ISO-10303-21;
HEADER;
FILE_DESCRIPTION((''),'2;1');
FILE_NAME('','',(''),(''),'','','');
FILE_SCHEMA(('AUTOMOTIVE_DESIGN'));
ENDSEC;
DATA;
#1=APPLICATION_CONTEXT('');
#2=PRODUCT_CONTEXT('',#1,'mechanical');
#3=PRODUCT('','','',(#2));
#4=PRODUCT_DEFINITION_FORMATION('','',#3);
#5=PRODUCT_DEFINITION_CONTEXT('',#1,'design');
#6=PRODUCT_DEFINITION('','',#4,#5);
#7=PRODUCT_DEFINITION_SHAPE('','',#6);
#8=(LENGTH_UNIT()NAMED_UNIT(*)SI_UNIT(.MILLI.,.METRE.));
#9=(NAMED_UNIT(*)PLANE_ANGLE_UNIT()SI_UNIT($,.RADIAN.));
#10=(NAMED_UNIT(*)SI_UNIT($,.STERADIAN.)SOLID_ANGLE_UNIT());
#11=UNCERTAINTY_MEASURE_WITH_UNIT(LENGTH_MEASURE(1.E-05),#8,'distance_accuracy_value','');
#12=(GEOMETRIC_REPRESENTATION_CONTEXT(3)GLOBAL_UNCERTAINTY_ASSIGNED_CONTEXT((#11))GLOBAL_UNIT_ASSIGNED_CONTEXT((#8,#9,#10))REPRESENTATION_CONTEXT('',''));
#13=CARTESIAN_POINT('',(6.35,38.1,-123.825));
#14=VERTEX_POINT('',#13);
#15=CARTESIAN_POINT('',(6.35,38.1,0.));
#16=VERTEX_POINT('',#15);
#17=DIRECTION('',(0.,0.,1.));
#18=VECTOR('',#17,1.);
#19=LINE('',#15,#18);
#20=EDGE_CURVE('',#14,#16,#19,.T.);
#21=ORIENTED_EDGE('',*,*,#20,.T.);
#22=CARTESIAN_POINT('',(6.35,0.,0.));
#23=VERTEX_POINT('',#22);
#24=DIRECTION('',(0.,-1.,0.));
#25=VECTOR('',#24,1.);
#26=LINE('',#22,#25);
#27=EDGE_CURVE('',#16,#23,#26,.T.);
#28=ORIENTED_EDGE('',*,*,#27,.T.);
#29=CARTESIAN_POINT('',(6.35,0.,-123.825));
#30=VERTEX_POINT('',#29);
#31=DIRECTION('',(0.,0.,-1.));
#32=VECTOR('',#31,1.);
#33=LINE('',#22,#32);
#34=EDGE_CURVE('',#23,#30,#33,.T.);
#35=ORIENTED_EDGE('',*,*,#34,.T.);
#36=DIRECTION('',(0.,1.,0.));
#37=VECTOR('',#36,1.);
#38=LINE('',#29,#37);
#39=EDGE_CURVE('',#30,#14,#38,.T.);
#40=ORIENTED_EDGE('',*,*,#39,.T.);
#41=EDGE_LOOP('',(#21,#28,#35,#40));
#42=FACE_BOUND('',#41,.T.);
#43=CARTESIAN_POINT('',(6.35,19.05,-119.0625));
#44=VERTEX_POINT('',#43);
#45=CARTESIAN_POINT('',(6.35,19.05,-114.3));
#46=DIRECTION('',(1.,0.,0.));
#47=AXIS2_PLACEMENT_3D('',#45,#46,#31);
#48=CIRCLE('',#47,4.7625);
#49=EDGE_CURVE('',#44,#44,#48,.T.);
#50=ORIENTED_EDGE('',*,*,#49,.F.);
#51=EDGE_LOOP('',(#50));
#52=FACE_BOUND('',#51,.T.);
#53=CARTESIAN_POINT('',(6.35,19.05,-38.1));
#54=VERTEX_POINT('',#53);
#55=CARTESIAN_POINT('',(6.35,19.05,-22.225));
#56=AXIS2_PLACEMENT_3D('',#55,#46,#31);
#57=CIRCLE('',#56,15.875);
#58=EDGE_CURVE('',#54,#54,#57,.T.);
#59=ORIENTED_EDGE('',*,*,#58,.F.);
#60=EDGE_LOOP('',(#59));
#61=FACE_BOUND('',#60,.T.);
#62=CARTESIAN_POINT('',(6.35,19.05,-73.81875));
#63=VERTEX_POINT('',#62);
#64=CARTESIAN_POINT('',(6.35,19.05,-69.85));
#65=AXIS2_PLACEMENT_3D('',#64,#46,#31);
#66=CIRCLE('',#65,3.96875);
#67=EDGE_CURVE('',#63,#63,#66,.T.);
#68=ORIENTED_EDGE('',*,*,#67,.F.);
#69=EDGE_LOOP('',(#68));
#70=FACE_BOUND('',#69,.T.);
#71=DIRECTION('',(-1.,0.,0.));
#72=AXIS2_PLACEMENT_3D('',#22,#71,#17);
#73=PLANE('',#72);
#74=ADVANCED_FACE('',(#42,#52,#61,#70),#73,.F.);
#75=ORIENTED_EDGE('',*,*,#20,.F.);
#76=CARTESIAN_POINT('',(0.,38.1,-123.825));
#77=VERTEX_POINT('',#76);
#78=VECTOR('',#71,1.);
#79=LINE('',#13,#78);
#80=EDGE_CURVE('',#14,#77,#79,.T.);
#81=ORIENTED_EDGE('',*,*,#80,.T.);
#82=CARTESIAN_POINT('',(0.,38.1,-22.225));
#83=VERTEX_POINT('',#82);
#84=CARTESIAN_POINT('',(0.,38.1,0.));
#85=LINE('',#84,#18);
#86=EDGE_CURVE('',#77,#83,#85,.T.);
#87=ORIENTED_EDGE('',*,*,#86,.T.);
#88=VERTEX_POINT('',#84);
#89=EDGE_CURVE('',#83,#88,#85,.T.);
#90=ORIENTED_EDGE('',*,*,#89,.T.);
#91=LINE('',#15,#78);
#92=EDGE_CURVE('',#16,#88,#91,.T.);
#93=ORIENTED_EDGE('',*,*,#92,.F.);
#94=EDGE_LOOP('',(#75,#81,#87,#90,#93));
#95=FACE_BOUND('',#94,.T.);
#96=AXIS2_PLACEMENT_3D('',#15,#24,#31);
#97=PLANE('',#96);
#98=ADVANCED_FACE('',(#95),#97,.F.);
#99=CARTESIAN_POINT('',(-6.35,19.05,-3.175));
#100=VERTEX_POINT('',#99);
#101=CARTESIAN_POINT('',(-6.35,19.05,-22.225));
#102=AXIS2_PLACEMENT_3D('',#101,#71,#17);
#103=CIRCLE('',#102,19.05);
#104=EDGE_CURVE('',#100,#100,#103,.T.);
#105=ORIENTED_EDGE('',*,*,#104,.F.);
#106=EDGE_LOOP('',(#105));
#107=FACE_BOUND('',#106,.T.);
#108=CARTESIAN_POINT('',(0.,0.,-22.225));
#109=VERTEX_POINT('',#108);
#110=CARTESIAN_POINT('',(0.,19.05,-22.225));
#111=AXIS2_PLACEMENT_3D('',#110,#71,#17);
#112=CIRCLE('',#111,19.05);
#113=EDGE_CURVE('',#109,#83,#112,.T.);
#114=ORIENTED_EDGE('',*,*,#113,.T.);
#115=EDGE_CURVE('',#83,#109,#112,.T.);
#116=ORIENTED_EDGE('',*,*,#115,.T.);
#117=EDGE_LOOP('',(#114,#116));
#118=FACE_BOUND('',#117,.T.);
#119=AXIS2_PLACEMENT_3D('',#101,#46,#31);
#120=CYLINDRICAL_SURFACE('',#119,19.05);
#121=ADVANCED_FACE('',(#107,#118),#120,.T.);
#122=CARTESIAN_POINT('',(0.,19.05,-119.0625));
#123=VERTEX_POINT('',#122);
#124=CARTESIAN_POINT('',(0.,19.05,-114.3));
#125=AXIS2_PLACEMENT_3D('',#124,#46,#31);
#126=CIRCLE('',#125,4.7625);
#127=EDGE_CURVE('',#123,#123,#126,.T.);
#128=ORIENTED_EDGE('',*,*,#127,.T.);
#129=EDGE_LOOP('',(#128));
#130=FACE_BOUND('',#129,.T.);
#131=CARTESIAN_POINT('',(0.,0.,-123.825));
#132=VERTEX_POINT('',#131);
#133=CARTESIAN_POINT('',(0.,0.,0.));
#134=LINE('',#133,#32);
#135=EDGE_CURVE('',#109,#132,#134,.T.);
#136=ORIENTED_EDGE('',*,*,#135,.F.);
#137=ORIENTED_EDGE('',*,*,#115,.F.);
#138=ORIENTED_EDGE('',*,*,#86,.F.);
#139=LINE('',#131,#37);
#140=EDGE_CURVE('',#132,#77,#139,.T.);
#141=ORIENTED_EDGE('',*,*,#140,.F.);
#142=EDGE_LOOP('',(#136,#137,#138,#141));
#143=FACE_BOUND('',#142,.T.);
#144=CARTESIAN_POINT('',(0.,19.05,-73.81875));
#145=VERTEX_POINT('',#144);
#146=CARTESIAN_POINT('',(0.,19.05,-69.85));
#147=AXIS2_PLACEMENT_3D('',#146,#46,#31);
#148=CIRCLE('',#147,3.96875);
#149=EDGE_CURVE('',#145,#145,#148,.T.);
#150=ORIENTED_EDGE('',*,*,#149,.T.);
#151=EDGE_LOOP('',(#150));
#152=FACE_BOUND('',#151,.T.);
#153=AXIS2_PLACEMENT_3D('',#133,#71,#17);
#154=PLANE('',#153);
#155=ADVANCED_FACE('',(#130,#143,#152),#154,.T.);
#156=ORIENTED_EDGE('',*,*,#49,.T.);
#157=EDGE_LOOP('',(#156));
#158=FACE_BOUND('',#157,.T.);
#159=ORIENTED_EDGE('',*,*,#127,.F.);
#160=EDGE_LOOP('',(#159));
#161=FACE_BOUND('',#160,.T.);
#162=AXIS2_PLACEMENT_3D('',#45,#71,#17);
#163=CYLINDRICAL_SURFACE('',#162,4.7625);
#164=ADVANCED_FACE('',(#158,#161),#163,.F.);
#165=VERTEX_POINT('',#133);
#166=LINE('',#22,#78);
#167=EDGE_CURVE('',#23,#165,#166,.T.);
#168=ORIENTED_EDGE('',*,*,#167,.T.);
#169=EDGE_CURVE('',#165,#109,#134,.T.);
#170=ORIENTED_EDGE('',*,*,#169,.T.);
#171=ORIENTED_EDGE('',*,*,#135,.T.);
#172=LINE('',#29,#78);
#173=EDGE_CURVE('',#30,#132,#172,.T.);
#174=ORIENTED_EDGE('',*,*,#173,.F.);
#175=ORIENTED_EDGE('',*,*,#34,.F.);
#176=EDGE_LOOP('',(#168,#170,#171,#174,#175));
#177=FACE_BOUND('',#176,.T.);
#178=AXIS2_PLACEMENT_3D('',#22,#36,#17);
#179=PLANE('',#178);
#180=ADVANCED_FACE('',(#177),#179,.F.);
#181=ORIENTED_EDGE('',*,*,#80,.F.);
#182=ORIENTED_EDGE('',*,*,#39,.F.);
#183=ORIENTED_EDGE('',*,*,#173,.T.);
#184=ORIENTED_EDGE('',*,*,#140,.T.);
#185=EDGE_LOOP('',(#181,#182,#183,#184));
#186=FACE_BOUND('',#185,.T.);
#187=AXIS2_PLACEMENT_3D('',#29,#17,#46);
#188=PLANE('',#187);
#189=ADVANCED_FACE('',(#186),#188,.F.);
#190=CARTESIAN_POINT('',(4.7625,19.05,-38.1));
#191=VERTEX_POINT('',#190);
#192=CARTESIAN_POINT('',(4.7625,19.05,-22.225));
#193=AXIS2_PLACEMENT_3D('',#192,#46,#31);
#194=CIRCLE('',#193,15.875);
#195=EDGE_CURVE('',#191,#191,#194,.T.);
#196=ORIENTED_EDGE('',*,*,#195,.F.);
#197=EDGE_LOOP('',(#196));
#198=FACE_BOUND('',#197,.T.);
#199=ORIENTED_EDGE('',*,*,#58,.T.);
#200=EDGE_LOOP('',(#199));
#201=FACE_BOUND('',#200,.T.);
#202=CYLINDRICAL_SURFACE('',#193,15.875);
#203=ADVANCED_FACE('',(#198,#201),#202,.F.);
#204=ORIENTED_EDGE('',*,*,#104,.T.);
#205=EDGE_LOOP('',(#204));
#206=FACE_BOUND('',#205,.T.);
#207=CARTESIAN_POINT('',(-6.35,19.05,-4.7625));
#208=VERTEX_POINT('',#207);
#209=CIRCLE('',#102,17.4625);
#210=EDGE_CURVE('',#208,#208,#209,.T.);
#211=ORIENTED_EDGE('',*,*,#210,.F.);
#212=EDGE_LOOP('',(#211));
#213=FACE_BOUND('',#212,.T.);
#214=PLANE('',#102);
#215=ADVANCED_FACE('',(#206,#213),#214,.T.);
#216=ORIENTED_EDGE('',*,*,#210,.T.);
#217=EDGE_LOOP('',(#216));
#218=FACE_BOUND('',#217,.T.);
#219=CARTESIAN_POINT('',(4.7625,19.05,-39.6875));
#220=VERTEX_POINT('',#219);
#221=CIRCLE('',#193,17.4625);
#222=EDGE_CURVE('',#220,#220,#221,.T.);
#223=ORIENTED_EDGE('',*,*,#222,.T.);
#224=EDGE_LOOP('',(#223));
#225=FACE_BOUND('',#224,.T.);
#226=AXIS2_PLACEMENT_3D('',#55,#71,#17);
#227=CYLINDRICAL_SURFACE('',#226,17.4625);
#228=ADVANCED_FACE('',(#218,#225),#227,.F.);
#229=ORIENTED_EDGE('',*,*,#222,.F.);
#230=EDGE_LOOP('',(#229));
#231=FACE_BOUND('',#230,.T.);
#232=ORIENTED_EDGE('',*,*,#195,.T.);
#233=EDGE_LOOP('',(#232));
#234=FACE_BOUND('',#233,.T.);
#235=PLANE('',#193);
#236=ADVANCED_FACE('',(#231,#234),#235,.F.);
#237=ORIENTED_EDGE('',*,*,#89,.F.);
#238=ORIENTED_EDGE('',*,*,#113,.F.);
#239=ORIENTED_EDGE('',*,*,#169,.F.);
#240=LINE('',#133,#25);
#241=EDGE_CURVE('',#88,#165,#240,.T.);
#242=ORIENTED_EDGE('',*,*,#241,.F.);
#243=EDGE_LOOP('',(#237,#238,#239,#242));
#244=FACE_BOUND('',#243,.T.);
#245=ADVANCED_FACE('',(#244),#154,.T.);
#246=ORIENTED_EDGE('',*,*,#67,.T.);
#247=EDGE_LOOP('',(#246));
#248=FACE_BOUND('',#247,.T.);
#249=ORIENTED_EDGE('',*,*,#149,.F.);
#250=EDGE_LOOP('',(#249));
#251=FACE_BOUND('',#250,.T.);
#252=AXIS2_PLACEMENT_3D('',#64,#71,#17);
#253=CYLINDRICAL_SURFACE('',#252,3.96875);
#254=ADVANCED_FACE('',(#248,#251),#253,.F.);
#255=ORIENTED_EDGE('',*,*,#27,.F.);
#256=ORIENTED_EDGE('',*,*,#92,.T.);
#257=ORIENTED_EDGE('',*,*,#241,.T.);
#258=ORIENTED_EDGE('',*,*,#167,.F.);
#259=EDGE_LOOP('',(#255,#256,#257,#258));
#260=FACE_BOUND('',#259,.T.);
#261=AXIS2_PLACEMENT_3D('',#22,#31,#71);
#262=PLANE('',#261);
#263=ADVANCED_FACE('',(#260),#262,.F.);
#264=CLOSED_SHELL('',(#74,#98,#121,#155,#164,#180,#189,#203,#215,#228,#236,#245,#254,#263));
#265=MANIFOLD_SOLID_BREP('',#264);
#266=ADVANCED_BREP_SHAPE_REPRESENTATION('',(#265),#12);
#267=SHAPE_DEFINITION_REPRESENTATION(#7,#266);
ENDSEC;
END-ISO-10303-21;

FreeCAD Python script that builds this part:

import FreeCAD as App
import Part
import Sketcher
Q = App.Units.Quantity


def add_polygon(sketch, points):
    """Adds a closed chain of lines whose ends are joined by coincident constraints."""
    first, n = sketch.GeometryCount, len(points)
    for a, b in zip(points, points[1:] + points[:1]):
        sketch.addGeometry(Part.LineSegment(App.Vector(*a, 0), App.Vector(*b, 0)), False)
    for i in range(n):
        sketch.addConstraint(Sketcher.Constraint("Coincident", first + i, 2, first + (i + 1) % n, 1))

doc = App.newDocument("Part")
body = doc.addObject("PartDesign::Body", "Body")

sketch1 = body.newObject("Sketcher::SketchObject", "Sketch")
sketch1.AttachmentSupport = (doc.getObject("YZ_Plane"), [""])
sketch1.MapMode = "FlatFace"
add_polygon(sketch1, [(38.1, 0), (0, 0), (0, -123.825), (38.1, -123.825)])
sketch1.addGeometry(Part.Circle(App.Vector(19.05, -22.225, 0), App.Vector(0, 0, 1), 17.4625), False)
sketch1.addGeometry(Part.Circle(App.Vector(19.05, -69.85, 0), App.Vector(0, 0, 1), 3.96875), False)
sketch1.addGeometry(Part.Circle(App.Vector(19.05, -114.3, 0), App.Vector(0, 0, 1), 4.7625), False)
sketch1.addConstraint(Sketcher.Constraint("Horizontal", 0))
sketch1.addConstraint(Sketcher.Constraint("Vertical", 1))
sketch1.addConstraint(Sketcher.Constraint("Horizontal", 2))
sketch1.addConstraint(Sketcher.Constraint("Vertical", 3))
sketch1.addConstraint(Sketcher.Constraint("Coincident", 0, 2, -1, 1))
sketch1.addConstraint(Sketcher.Constraint("Vertical", 4, 3, 5, 3))
sketch1.addConstraint(Sketcher.Constraint("Vertical", 5, 3, 6, 3))
sketch1.addConstraint(Sketcher.Constraint("Diameter", 4, Q("1.375 in")))
sketch1.addConstraint(Sketcher.Constraint("Diameter", 5, Q("0.3125 in")))
sketch1.addConstraint(Sketcher.Constraint("Diameter", 6, Q("0.375 in")))
sketch1.addConstraint(Sketcher.Constraint("DistanceX", 0, 2, 0, 1, Q("1.5 in")))
sketch1.addConstraint(Sketcher.Constraint("DistanceY", 1, 2, 4, 3, Q("4 in")))
sketch1.addConstraint(Sketcher.Constraint("DistanceY", 6, 3, -1, 1, Q("4.5 in")))
sketch1.addConstraint(Sketcher.Constraint("DistanceY", 1, 2, 1, 1, Q("4.875 in")))
sketch1.addConstraint(Sketcher.Constraint("DistanceX", -1, 1, 4, 3, Q("0.75 in")))
sketch1.addConstraint(Sketcher.Constraint("DistanceY", 5, 3, -1, 1, Q("2.75 in")))
pad1 = body.newObject("PartDesign::Pad", "Pad")
pad1.Profile = sketch1
pad1.Length = Q("0.25 in")

sketch2 = body.newObject("Sketcher::SketchObject", "Sketch001")
sketch2.AttachmentSupport = (doc.getObject("YZ_Plane"), [""])
sketch2.MapMode = "FlatFace"
sketch2.AttachmentOffset = App.Placement(App.Vector(0, 0, 0.1875 * 25.4), App.Rotation())
sketch2.addGeometry(Part.Circle(App.Vector(19.05, -22.225, 0), App.Vector(0, 0, 1), 17.4625), False)
sketch2.addGeometry(Part.Circle(App.Vector(19.05, -22.225, 0), App.Vector(0, 0, 1), 15.875), False)
sketch2.addConstraint(Sketcher.Constraint("Coincident", 1, 3, 0, 3))
sketch2.addConstraint(Sketcher.Constraint("Diameter", 1, Q("1.25 in")))
sketch2.addConstraint(Sketcher.Constraint("Diameter", 0, Q("1.375 in")))
sketch2.addConstraint(Sketcher.Constraint("DistanceX", -1, 1, 0, 3, Q("0.75 in")))
sketch2.addConstraint(Sketcher.Constraint("DistanceY", 0, 3, -1, 1, Q("0.875 in")))
pad2 = body.newObject("PartDesign::Pad", "Pad001")
pad2.Profile = sketch2
pad2.Length = Q("0.0625 in")

sketch3 = body.newObject("Sketcher::SketchObject", "Sketch002")
sketch3.AttachmentSupport = (doc.getObject("YZ_Plane"), [""])
sketch3.MapMode = "FlatFace"
sketch3.AttachmentOffset = App.Placement(App.Vector(0, 0, -0.25 * 25.4), App.Rotation())
sketch3.addGeometry(Part.Circle(App.Vector(19.05, -22.225, 0), App.Vector(0, 0, 1), 19.05), False)
sketch3.addGeometry(Part.Circle(App.Vector(19.05, -22.225, 0), App.Vector(0, 0, 1), 17.4625), False)
sketch3.addConstraint(Sketcher.Constraint("Coincident", 1, 3, 0, 3))
sketch3.addConstraint(Sketcher.Constraint("Diameter", 0, Q("1.5 in")))
sketch3.addConstraint(Sketcher.Constraint("Diameter", 1, Q("1.375 in")))
sketch3.addConstraint(Sketcher.Constraint("DistanceX", -1, 1, 0, 3, Q("0.75 in")))
sketch3.addConstraint(Sketcher.Constraint("DistanceY", 0, 3, -1, 1, Q("0.875 in")))
pad3 = body.newObject("PartDesign::Pad", "Pad002")
pad3.Profile = sketch3
pad3.Length = Q("0.25 in")

doc.recompute()
